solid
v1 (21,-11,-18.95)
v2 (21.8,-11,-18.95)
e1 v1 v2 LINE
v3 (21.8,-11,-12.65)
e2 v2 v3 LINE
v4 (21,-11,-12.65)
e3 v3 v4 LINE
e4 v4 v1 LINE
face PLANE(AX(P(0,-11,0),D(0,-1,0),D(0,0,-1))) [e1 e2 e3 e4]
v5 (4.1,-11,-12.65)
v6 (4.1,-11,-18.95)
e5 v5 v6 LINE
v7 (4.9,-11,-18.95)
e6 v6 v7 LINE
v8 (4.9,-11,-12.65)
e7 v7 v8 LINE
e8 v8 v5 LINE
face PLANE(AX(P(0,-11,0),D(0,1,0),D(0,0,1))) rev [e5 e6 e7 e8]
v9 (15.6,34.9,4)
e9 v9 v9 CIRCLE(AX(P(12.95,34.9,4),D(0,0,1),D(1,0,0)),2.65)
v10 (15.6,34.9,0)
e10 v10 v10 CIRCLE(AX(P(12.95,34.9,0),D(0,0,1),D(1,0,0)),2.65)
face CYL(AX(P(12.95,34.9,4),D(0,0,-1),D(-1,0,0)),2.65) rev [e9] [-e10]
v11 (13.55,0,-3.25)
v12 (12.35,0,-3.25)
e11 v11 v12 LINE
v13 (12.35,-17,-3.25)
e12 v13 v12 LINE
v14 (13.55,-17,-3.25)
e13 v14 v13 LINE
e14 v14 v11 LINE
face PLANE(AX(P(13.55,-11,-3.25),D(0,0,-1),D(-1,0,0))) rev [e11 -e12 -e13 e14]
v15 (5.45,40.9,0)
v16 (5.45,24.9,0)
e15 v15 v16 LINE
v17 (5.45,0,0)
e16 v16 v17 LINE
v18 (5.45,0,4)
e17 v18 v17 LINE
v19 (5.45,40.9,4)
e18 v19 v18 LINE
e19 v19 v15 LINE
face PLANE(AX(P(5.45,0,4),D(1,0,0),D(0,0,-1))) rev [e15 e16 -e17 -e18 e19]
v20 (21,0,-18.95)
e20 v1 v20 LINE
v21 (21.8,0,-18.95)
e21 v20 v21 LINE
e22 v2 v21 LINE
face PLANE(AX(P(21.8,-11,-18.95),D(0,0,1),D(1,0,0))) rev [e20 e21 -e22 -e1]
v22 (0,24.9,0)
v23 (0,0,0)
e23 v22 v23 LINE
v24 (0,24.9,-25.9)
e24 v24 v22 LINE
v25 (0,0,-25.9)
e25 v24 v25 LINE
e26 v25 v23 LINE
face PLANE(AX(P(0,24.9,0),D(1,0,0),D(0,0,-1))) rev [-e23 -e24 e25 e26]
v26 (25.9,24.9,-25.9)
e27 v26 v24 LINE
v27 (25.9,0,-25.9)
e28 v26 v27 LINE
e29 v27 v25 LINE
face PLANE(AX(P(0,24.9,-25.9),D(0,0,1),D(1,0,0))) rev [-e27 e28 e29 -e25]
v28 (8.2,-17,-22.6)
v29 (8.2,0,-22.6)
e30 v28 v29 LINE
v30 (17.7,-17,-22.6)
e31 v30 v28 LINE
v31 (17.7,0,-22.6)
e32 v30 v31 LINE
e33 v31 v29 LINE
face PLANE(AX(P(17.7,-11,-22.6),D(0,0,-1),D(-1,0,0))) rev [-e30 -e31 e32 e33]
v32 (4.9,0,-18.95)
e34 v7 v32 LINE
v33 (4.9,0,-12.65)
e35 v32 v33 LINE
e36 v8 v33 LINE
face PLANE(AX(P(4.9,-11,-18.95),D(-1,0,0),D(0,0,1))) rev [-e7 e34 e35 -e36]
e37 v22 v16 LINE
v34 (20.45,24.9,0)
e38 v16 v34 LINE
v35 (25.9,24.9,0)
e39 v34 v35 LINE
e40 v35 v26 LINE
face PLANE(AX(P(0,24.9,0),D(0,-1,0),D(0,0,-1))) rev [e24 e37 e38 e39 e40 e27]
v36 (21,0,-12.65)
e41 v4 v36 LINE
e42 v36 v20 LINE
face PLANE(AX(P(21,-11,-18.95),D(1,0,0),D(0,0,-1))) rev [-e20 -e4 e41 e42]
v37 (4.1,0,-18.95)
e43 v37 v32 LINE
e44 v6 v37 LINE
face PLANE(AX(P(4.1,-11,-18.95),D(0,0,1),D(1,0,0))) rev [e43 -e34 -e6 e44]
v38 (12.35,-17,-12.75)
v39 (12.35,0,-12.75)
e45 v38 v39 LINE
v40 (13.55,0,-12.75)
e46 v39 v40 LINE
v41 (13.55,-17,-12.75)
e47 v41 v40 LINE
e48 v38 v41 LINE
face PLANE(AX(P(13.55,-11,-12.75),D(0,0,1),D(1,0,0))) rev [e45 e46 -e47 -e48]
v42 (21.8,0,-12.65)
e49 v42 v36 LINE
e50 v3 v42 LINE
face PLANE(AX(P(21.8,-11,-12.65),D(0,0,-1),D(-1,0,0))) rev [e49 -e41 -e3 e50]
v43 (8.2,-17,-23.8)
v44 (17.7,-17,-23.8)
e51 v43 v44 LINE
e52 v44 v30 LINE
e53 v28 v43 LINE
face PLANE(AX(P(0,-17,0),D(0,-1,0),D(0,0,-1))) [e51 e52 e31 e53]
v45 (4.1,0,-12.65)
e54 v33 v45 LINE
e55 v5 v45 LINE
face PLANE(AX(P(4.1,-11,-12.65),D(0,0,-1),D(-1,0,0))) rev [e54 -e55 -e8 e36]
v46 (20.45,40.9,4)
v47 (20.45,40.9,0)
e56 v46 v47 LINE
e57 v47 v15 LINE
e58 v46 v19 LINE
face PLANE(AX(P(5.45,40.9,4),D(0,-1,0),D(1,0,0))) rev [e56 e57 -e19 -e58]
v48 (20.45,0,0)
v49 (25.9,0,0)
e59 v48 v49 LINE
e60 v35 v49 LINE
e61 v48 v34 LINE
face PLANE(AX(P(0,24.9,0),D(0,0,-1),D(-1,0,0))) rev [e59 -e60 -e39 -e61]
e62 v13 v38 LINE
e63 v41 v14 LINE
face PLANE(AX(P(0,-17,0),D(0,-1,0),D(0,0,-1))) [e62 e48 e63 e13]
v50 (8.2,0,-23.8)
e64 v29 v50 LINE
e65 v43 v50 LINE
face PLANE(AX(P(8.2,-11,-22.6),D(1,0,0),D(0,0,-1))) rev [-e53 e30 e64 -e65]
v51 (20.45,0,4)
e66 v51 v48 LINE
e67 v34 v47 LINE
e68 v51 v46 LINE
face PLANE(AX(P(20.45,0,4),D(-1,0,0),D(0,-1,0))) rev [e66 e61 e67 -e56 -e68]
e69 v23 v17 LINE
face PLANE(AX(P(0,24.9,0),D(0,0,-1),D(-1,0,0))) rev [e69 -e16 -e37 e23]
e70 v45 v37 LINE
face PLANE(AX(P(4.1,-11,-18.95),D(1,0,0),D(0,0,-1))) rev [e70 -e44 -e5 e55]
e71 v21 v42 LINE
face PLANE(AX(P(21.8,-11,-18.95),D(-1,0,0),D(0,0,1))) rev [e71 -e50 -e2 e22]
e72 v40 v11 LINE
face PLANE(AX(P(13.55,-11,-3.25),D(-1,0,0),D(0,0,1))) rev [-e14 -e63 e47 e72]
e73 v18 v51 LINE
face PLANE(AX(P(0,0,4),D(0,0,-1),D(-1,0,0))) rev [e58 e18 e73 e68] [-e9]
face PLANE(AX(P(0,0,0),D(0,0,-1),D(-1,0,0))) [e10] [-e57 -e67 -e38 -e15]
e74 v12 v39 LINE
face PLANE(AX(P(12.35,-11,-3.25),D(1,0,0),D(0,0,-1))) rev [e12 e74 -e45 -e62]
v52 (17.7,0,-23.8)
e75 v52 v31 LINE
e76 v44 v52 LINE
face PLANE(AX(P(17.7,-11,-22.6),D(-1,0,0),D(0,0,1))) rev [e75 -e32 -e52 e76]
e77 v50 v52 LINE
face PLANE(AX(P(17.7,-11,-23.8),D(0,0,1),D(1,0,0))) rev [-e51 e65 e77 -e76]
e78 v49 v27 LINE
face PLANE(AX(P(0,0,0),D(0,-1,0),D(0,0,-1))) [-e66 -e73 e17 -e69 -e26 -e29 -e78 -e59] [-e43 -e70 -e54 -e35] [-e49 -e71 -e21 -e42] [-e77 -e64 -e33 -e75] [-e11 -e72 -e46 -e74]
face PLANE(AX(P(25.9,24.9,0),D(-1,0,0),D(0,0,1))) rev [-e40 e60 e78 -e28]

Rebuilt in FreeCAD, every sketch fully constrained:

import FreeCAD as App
import Part
import Sketcher

doc = App.newDocument("Part")
params = doc.addObject("Spreadsheet::Sheet", "Params")
for row, (alias, value) in enumerate([
    ("sketch1_width", "25.9 mm"),
    ("pad1_length", "24.9 mm"),
    ("sketch2_diameter", "5.3 mm"),
    ("sketch2_width", "15 mm"),
    ("sketch2_height", "40.9 mm"),
    ("pad2_length", "4 mm"),
    ("sketch3_width", "9.5 mm"),
    ("sketch3_width2", "0.8 mm"),
    ("sketch3_width3", "1.2 mm"),
    ("sketch3_height", "6.3 mm"),
    ("pad3_length", "11 mm"),
    ("sketch4_width", "1.2 mm"),
    ("sketch4_width2", "9.5 mm"),
    ("pad4_length", "6 mm"),
], start=1):
    params.set(f"A{row}", alias)
    params.set(f"B{row}", "=" + value)
    params.setAlias(f"B{row}", alias)

body = doc.addObject("PartDesign::Body", "Body")

# Sketch on XZ plane
sketch1 = body.newObject("Sketcher::SketchObject", "Sketch")
sketch1.AttachmentSupport = (doc.getObject("XZ_Plane"), [""])
sketch1.MapMode = "FlatFace"
sketch1.addGeometry(Part.LineSegment(App.Vector(0, -25.9, 0), App.Vector(0, 0, 0)), False)
sketch1.addGeometry(Part.LineSegment(App.Vector(0, 0, 0), App.Vector(25.9, 0, 0)), False)
sketch1.addGeometry(Part.LineSegment(App.Vector(25.9, 0, 0), App.Vector(25.9, -25.9, 0)), False)
sketch1.addGeometry(Part.LineSegment(App.Vector(25.9, -25.9, 0), App.Vector(0, -25.9, 0)), False)
sketch1.addConstraint(Sketcher.Constraint("Coincident", 0, 2, 1, 1))
sketch1.addConstraint(Sketcher.Constraint("Coincident", 1, 2, 2, 1))
sketch1.addConstraint(Sketcher.Constraint("Coincident", 2, 2, 3, 1))
sketch1.addConstraint(Sketcher.Constraint("Coincident", 3, 2, 0, 1))
sketch1.addConstraint(Sketcher.Constraint("Vertical", 0))
sketch1.addConstraint(Sketcher.Constraint("Horizontal", 1))
sketch1.addConstraint(Sketcher.Constraint("Vertical", 2))
sketch1.addConstraint(Sketcher.Constraint("Horizontal", 3))
sketch1.addConstraint(Sketcher.Constraint("Coincident", 0, 2, -1, 1))
sketch1.addConstraint(Sketcher.Constraint("Equal", 3, 0))
sketch1.addConstraint(Sketcher.Constraint("DistanceX", 1, 1, 1, 2, 25.9))
sketch1.setExpression("Constraints[10]", "Params.sketch1_width")
pad1 = body.newObject("PartDesign::Pad", "Pad")
pad1.Profile = sketch1
pad1.setExpression("Length", "Params.pad1_length")
pad1.Reversed = True

# Sketch on XY plane
sketch2 = body.newObject("Sketcher::SketchObject", "Sketch001")
sketch2.AttachmentSupport = (doc.getObject("XY_Plane"), [""])
sketch2.MapMode = "FlatFace"
sketch2.addGeometry(Part.LineSegment(App.Vector(5.45, 40.9, 0), App.Vector(5.45, 0, 0)), False)
sketch2.addGeometry(Part.LineSegment(App.Vector(5.45, 0, 0), App.Vector(20.45, 0, 0)), False)
sketch2.addGeometry(Part.LineSegment(App.Vector(20.45, 0, 0), App.Vector(20.45, 40.9, 0)), False)
sketch2.addGeometry(Part.LineSegment(App.Vector(20.45, 40.9, 0), App.Vector(5.45, 40.9, 0)), False)
sketch2.addGeometry(Part.Circle(App.Vector(12.95, 34.9, 0), App.Vector(0, 0, 1), 2.65), False)
sketch2.addConstraint(Sketcher.Constraint("Coincident", 0, 2, 1, 1))
sketch2.addConstraint(Sketcher.Constraint("Coincident", 1, 2, 2, 1))
sketch2.addConstraint(Sketcher.Constraint("Coincident", 2, 2, 3, 1))
sketch2.addConstraint(Sketcher.Constraint("Coincident", 3, 2, 0, 1))
sketch2.addConstraint(Sketcher.Constraint("Vertical", 0))
sketch2.addConstraint(Sketcher.Constraint("Horizontal", 1))
sketch2.addConstraint(Sketcher.Constraint("Vertical", 2))
sketch2.addConstraint(Sketcher.Constraint("Horizontal", 3))
sketch2.addConstraint(Sketcher.Constraint("PointOnObject", 0, 2, -1))
sketch2.addConstraint(Sketcher.Constraint("Diameter", 4, 5.3))
sketch2.addConstraint(Sketcher.Constraint("DistanceX", 1, 1, 1, 2, 15.0))
sketch2.addConstraint(Sketcher.Constraint("DistanceY", 0, 2, 0, 1, 40.9))
sketch2.addConstraint(Sketcher.Constraint("DistanceY", 4, 3, 2, 2, 6.0))
sketch2.addConstraint(Sketcher.Constraint("DistanceX", 0, 2, 4, 3, 7.5))
sketch2.addConstraint(Sketcher.Constraint("DistanceX", -1, 1, 4, 3, 12.95))
sketch2.setExpression("Constraints[9]", "Params.sketch2_diameter")
sketch2.setExpression("Constraints[10]", "Params.sketch2_width")
sketch2.setExpression("Constraints[11]", "Params.sketch2_height")
pad2 = body.newObject("PartDesign::Pad", "Pad001")
pad2.Profile = sketch2
pad2.setExpression("Length", "Params.pad2_length")

# Sketch on XZ plane
sketch3 = body.newObject("Sketcher::SketchObject", "Sketch002")
sketch3.AttachmentSupport = (doc.getObject("XZ_Plane"), [""])
sketch3.MapMode = "FlatFace"
sketch3.addGeometry(Part.LineSegment(App.Vector(8.2, -22.6, 0), App.Vector(8.2, -23.8, 0)), False)
sketch3.addGeometry(Part.LineSegment(App.Vector(8.2, -23.8, 0), App.Vector(17.7, -23.8, 0)), False)
sketch3.addGeometry(Part.LineSegment(App.Vector(17.7, -23.8, 0), App.Vector(17.7, -22.6, 0)), False)
sketch3.addGeometry(Part.LineSegment(App.Vector(17.7, -22.6, 0), App.Vector(8.2, -22.6, 0)), False)
sketch3.addGeometry(Part.LineSegment(App.Vector(21, -12.65, 0), App.Vector(21, -18.95, 0)), False)
sketch3.addGeometry(Part.LineSegment(App.Vector(21, -18.95, 0), App.Vector(21.8, -18.95, 0)), False)
sketch3.addGeometry(Part.LineSegment(App.Vector(21.8, -18.95, 0), App.Vector(21.8, -12.65, 0)), False)
sketch3.addGeometry(Part.LineSegment(App.Vector(21.8, -12.65, 0), App.Vector(21, -12.65, 0)), False)
sketch3.addGeometry(Part.LineSegment(App.Vector(4.1, -12.65, 0), App.Vector(4.1, -18.95, 0)), False)
sketch3.addGeometry(Part.LineSegment(App.Vector(4.1, -18.95, 0), App.Vector(4.9, -18.95, 0)), False)
sketch3.addGeometry(Part.LineSegment(App.Vector(4.9, -18.95, 0), App.Vector(4.9, -12.65, 0)), False)
sketch3.addGeometry(Part.LineSegment(App.Vector(4.9, -12.65, 0), App.Vector(4.1, -12.65, 0)), False)
sketch3.addGeometry(Part.LineSegment(App.Vector(12.35, -3.25, 0), App.Vector(12.35, -12.75, 0)), False)
sketch3.addGeometry(Part.LineSegment(App.Vector(12.35, -12.75, 0), App.Vector(13.55, -12.75, 0)), False)
sketch3.addGeometry(Part.LineSegment(App.Vector(13.55, -12.75, 0), App.Vector(13.55, -3.25, 0)), False)
sketch3.addGeometry(Part.LineSegment(App.Vector(13.55, -3.25, 0), App.Vector(12.35, -3.25, 0)), False)
sketch3.addConstraint(Sketcher.Constraint("Coincident", 0, 2, 1, 1))
sketch3.addConstraint(Sketcher.Constraint("Coincident", 1, 2, 2, 1))
sketch3.addConstraint(Sketcher.Constraint("Coincident", 2, 2, 3, 1))
sketch3.addConstraint(Sketcher.Constraint("Coincident", 3, 2, 0, 1))
sketch3.addConstraint(Sketcher.Constraint("Coincident", 4, 2, 5, 1))
sketch3.addConstraint(Sketcher.Constraint("Coincident", 5, 2, 6, 1))
sketch3.addConstraint(Sketcher.Constraint("Coincident", 6, 2, 7, 1))
sketch3.addConstraint(Sketcher.Constraint("Coincident", 7, 2, 4, 1))
sketch3.addConstraint(Sketcher.Constraint("Coincident", 8, 2, 9, 1))
sketch3.addConstraint(Sketcher.Constraint("Coincident", 9, 2, 10, 1))
sketch3.addConstraint(Sketcher.Constraint("Coincident", 10, 2, 11, 1))
sketch3.addConstraint(Sketcher.Constraint("Coincident", 11, 2, 8, 1))
sketch3.addConstraint(Sketcher.Constraint("Coincident", 12, 2, 13, 1))
sketch3.addConstraint(Sketcher.Constraint("Coincident", 13, 2, 14, 1))
sketch3.addConstraint(Sketcher.Constraint("Coincident", 14, 2, 15, 1))
sketch3.addConstraint(Sketcher.Constraint("Coincident", 15, 2, 12, 1))
sketch3.addConstraint(Sketcher.Constraint("Vertical", 0))
sketch3.addConstraint(Sketcher.Constraint("Horizontal", 1))
sketch3.addConstraint(Sketcher.Constraint("Vertical", 2))
sketch3.addConstraint(Sketcher.Constraint("Horizontal", 3))
sketch3.addConstraint(Sketcher.Constraint("Vertical", 4))
sketch3.addConstraint(Sketcher.Constraint("Horizontal", 5))
sketch3.addConstraint(Sketcher.Constraint("Vertical", 6))
sketch3.addConstraint(Sketcher.Constraint("Horizontal", 7))
sketch3.addConstraint(Sketcher.Constraint("Vertical", 8))
sketch3.addConstraint(Sketcher.Constraint("Horizontal", 9))
sketch3.addConstraint(Sketcher.Constraint("Vertical", 10))
sketch3.addConstraint(Sketcher.Constraint("Horizontal", 11))
sketch3.addConstraint(Sketcher.Constraint("Vertical", 12))
sketch3.addConstraint(Sketcher.Constraint("Horizontal", 13))
sketch3.addConstraint(Sketcher.Constraint("Vertical", 14))
sketch3.addConstraint(Sketcher.Constraint("Horizontal", 15))
sketch3.addConstraint(Sketcher.Constraint("Horizontal", 5, 2, 8, 2))
sketch3.addConstraint(Sketcher.Constraint("Horizontal", 7, 2, 10, 2))
sketch3.addConstraint(Sketcher.Constraint("Equal", 7, 9))
sketch3.addConstraint(Sketcher.Constraint("Equal", 15, 0))
sketch3.addConstraint(Sketcher.Constraint("Equal", 3, 12))
sketch3.addConstraint(Sketcher.Constraint("DistanceX", 1, 1, 1, 2, 9.5))
sketch3.addConstraint(Sketcher.Constraint("DistanceX", 5, 1, 5, 2, 0.8))
sketch3.addConstraint(Sketcher.Constraint("DistanceX", 13, 1, 13, 2, 1.2))
sketch3.addConstraint(Sketcher.Constraint("DistanceY", 4, 2, 4, 1, 6.3))
sketch3.addConstraint(Sketcher.Constraint("DistanceX", -1, 1, 4, 2, 21.0))
sketch3.addConstraint(Sketcher.Constraint("DistanceX", -1, 1, 0, 2, 8.2))
sketch3.addConstraint(Sketcher.Constraint("DistanceY", 0, 2, -1, 1, 23.8))
sketch3.addConstraint(Sketcher.Constraint("DistanceX", -1, 1, 8, 2, 4.1))
sketch3.addConstraint(Sketcher.Constraint("DistanceY", 12, 2, 10, 2, 0.1))
sketch3.addConstraint(Sketcher.Constraint("DistanceY", 4, 2, -1, 1, 18.95))
sketch3.addConstraint(Sketcher.Constraint("DistanceX", -1, 1, 12, 2, 12.35))
sketch3.setExpression("Constraints[37]", "Params.sketch3_width")
sketch3.setExpression("Constraints[38]", "Params.sketch3_width2")
sketch3.setExpression("Constraints[39]", "Params.sketch3_width3")
sketch3.setExpression("Constraints[40]", "Params.sketch3_height")
pad3 = body.newObject("PartDesign::Pad", "Pad002")
pad3.Profile = sketch3
pad3.setExpression("Length", "Params.pad3_length")

# Sketch on XZ plane
sketch4 = body.newObject("Sketcher::SketchObject", "Sketch003")
sketch4.AttachmentSupport = (doc.getObject("XZ_Plane"), [""])
sketch4.MapMode = "FlatFace"
sketch4.AttachmentOffset = App.Placement(App.Vector(0, 0, 11), App.Rotation())
sketch4.addGeometry(Part.LineSegment(App.Vector(12.35, -3.25, 0), App.Vector(12.35, -12.75, 0)), False)
sketch4.addGeometry(Part.LineSegment(App.Vector(12.35, -12.75, 0), App.Vector(13.55, -12.75, 0)), False)
sketch4.addGeometry(Part.LineSegment(App.Vector(13.55, -12.75, 0), App.Vector(13.55, -3.25, 0)), False)
sketch4.addGeometry(Part.LineSegment(App.Vector(13.55, -3.25, 0), App.Vector(12.35, -3.25, 0)), False)
sketch4.addGeometry(Part.LineSegment(App.Vector(8.2, -22.6, 0), App.Vector(8.2, -23.8, 0)), False)
sketch4.addGeometry(Part.LineSegment(App.Vector(8.2, -23.8, 0), App.Vector(17.7, -23.8, 0)), False)
sketch4.addGeometry(Part.LineSegment(App.Vector(17.7, -23.8, 0), App.Vector(17.7, -22.6, 0)), False)
sketch4.addGeometry(Part.LineSegment(App.Vector(17.7, -22.6, 0), App.Vector(8.2, -22.6, 0)), False)
sketch4.addConstraint(Sketcher.Constraint("Coincident", 0, 2, 1, 1))
sketch4.addConstraint(Sketcher.Constraint("Coincident", 1, 2, 2, 1))
sketch4.addConstraint(Sketcher.Constraint("Coincident", 2, 2, 3, 1))
sketch4.addConstraint(Sketcher.Constraint("Coincident", 3, 2, 0, 1))
sketch4.addConstraint(Sketcher.Constraint("Coincident", 4, 2, 5, 1))
sketch4.addConstraint(Sketcher.Constraint("Coincident", 5, 2, 6, 1))
sketch4.addConstraint(Sketcher.Constraint("Coincident", 6, 2, 7, 1))
sketch4.addConstraint(Sketcher.Constraint("Coincident", 7, 2, 4, 1))
sketch4.addConstraint(Sketcher.Constraint("Vertical", 0))
sketch4.addConstraint(Sketcher.Constraint("Horizontal", 1))
sketch4.addConstraint(Sketcher.Constraint("Vertical", 2))
sketch4.addConstraint(Sketcher.Constraint("Horizontal", 3))
sketch4.addConstraint(Sketcher.Constraint("Vertical", 4))
sketch4.addConstraint(Sketcher.Constraint("Horizontal", 5))
sketch4.addConstraint(Sketcher.Constraint("Vertical", 6))
sketch4.addConstraint(Sketcher.Constraint("Horizontal", 7))
sketch4.addConstraint(Sketcher.Constraint("Equal", 7, 0))
sketch4.addConstraint(Sketcher.Constraint("Equal", 3, 4))
sketch4.addConstraint(Sketcher.Constraint("DistanceX", 1, 1, 1, 2, 1.2))
sketch4.addConstraint(Sketcher.Constraint("DistanceX", 5, 1, 5, 2, 9.5))
sketch4.addConstraint(Sketcher.Constraint("DistanceX", -1, 1, 4, 2, 8.2))
sketch4.addConstraint(Sketcher.Constraint("DistanceY", 4, 2, -1, 1, 23.8))
sketch4.addConstraint(Sketcher.Constraint("DistanceX", -1, 1, 0, 2, 12.35))
sketch4.addConstraint(Sketcher.Constraint("DistanceY", 0, 2, -1, 1, 12.75))
sketch4.setExpression("Constraints[18]", "Params.sketch4_width")
sketch4.setExpression("Constraints[19]", "Params.sketch4_width2")
pad4 = body.newObject("PartDesign::Pad", "Pad003")
pad4.Profile = sketch4
pad4.setExpression("Length", "Params.pad4_length")

doc.recompute()
